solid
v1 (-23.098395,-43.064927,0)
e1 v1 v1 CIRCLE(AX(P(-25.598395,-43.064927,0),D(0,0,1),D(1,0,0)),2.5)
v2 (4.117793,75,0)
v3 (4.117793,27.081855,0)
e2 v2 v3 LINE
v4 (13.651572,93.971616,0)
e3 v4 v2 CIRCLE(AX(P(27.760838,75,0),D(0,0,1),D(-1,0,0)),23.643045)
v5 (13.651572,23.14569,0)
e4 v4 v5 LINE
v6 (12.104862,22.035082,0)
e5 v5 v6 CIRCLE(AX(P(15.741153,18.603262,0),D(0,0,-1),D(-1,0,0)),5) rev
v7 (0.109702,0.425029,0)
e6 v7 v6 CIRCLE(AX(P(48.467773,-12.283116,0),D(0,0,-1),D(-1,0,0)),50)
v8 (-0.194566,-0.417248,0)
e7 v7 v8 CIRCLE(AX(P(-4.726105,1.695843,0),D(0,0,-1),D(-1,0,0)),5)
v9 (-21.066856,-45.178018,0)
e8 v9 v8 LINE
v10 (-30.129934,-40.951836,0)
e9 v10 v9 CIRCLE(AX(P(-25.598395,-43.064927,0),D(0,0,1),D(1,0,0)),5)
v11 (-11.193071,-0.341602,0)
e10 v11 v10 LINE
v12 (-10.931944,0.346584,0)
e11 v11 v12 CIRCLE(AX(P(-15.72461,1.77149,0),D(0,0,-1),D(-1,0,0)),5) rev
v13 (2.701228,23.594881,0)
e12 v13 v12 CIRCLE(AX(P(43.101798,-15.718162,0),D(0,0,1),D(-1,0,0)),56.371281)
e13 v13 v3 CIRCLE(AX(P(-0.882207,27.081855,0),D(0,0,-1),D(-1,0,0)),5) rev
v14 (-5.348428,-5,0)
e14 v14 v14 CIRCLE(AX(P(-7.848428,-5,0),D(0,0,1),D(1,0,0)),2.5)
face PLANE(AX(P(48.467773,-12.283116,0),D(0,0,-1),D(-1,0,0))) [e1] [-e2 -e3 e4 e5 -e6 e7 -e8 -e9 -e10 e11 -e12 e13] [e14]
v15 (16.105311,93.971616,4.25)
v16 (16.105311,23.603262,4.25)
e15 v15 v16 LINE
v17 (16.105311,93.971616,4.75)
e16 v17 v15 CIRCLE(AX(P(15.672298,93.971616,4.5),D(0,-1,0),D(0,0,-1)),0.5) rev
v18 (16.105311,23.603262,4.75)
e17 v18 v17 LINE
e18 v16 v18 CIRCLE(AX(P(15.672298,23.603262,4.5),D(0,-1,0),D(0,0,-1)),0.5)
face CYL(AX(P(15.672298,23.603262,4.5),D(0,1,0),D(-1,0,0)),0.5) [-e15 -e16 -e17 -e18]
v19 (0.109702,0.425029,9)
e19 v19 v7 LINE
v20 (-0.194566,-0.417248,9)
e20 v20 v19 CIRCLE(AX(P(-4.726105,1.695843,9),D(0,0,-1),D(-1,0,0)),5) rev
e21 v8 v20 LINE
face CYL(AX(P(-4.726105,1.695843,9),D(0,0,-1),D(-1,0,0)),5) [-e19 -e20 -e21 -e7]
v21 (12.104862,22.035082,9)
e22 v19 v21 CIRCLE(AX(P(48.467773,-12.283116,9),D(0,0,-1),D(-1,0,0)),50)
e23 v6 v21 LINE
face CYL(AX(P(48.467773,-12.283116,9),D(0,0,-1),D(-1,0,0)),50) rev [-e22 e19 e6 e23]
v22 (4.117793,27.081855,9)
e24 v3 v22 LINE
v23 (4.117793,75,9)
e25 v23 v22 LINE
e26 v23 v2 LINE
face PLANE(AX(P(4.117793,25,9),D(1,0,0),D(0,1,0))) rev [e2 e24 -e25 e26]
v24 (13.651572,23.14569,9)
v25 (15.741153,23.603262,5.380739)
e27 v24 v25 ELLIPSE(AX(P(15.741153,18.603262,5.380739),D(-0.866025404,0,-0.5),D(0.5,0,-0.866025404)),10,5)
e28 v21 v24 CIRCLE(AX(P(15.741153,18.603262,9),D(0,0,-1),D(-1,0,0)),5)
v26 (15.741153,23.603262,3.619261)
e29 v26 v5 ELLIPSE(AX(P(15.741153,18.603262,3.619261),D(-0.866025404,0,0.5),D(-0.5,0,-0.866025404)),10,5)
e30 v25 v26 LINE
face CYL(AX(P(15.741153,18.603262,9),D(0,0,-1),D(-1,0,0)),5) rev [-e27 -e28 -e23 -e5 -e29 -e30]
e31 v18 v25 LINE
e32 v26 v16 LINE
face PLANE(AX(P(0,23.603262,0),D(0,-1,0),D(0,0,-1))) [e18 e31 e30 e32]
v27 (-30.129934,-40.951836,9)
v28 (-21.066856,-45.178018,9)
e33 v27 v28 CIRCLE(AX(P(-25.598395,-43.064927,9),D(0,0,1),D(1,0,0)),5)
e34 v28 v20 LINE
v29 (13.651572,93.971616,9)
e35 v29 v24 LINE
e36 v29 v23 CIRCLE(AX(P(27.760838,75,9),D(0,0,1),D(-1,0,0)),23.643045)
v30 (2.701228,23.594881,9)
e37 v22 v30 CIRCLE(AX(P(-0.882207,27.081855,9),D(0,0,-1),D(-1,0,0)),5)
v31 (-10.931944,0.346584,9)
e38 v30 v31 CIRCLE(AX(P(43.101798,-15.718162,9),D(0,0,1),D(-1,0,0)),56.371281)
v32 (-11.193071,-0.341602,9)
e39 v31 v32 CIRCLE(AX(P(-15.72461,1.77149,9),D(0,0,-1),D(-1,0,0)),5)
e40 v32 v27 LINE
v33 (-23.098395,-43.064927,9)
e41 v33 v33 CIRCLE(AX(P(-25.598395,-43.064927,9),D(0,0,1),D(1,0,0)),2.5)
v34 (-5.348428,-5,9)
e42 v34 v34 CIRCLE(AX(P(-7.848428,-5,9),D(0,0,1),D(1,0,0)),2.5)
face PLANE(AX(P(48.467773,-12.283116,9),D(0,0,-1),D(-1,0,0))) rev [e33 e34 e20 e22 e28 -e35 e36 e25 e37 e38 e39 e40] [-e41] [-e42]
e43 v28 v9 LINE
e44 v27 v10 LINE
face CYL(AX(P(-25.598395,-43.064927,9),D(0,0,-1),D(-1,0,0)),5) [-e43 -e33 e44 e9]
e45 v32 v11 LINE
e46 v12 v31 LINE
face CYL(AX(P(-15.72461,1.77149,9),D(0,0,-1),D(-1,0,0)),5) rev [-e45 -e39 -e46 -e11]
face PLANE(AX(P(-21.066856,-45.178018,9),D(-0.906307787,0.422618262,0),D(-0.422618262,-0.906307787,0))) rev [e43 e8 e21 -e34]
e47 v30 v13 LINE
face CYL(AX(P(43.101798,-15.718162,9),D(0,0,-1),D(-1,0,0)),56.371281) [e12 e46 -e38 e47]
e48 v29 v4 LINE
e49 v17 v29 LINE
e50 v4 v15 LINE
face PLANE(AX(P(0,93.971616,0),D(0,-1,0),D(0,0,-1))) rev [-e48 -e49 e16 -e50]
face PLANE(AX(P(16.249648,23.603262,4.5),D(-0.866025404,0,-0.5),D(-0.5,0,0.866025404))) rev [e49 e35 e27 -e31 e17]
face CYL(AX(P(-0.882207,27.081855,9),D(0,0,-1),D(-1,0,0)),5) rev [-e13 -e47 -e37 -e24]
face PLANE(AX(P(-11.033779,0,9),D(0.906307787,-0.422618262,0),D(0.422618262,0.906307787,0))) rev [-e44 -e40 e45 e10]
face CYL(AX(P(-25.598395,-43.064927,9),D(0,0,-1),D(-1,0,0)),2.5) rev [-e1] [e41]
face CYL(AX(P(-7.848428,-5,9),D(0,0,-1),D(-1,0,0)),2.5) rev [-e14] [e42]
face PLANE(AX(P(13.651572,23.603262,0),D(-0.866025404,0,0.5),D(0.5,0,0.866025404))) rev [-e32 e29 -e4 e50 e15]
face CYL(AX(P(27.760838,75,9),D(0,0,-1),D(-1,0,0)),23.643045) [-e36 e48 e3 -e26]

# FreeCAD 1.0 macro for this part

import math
import FreeCAD as App
import Part
import Sketcher

V = App.Vector
Q = App.Units.Quantity


def edges_at(feature, points):
    """Names of the edges that pass closest to the given points."""
    edges = feature.Shape.Edges
    near = lambda p: min(range(len(edges)), key=lambda i: edges[i].distToShape(Part.Vertex(*p))[0])
    return sorted({f"Edge{near(p) + 1}" for p in points})

doc = App.newDocument("Part")
body = doc.addObject("PartDesign::Body", "Body")

# Sketch on XY plane
sketch1 = body.newObject("Sketcher::SketchObject", "Sketch")
sketch1.AttachmentSupport = (doc.getObject("XY_Plane"), [""])
sketch1.MapMode = "FlatFace"
sketch1.addGeometry([
    Part.LineSegment(V(-11, 0, 0), V(-30.1, -41, 0)),  # 0
    Part.ArcOfCircle(Part.Circle(V(-25.6, -43.1, 0), V(0, 0, 1), 5), math.radians(155), math.radians(335)),  # 1
    Part.LineSegment(V(-21.1, -45.2, 0), V(0, 0, 0)),  # 2
    Part.ArcOfCircle(Part.Circle(V(48.5, -12.3, 0), V(0, 0, 1), 50), math.radians(132), math.radians(166)),  # 3
    Part.LineSegment(V(15.2, 25, 0), V(15.2, 95, 0)),  # 4
    Part.ArcOfCircle(Part.Circle(V(27.8, 75, 0), V(0, 0, 1), 23.6), math.radians(122), math.radians(180)),  # 5
    Part.LineSegment(V(4.1, 75, 0), V(4.1, 25, 0)),  # 6
    Part.ArcOfCircle(Part.Circle(V(43.1, -15.7, 0), V(0, 0, 1), 56.4), math.radians(134), math.radians(164)),  # 7
    Part.Circle(V(-25.6, -43.1, 0), V(0, 0, 1), 2.5),  # 8
    Part.Circle(V(-7.8, -5, 0), V(0, 0, 1), 2.5),  # 9
], False)
sketch1.addConstraint([
    Sketcher.Constraint("Tangent", 0, 2, 1, 1),
    Sketcher.Constraint("Tangent", 1, 2, 2, 1),
    Sketcher.Constraint("Coincident", 2, 2, 3, 2),
    Sketcher.Constraint("Coincident", 3, 1, 4, 1),
    Sketcher.Constraint("Coincident", 4, 2, 5, 1),
    Sketcher.Constraint("Tangent", 5, 2, 6, 1),
    Sketcher.Constraint("Coincident", 6, 2, 7, 1),
    Sketcher.Constraint("Coincident", 7, 2, 0, 1),
    Sketcher.Constraint("Vertical", 4),
    Sketcher.Constraint("Vertical", 6),
    Sketcher.Constraint("Coincident", 2, 2, -1, 1),
    Sketcher.Constraint("Coincident", 8, 3, 1, 3),
    Sketcher.Constraint("Equal", 8, 9),
    Sketcher.Constraint("PointOnObject", 7, 2, -1),
    Sketcher.Constraint("Parallel", 0, 2),
    Sketcher.Constraint("Horizontal", 3, 1, 6, 2),
    Sketcher.Constraint("Diameter", 8, 5.0),
    Sketcher.Constraint("Radius", 1, 5.0),
    Sketcher.Constraint("Radius", 3, 50.0),
    Sketcher.Constraint("DistanceY", 4, 1, 4, 2, 70.0),
    Sketcher.Constraint("DistanceY", 6, 2, 6, 1, 50.0),
    Sketcher.Constraint("Angle", 0, Q("-115 deg")),
    Sketcher.Constraint("DistanceY", -1, 1, 5, 3, 75.0),
    Sketcher.Constraint("DistanceY", 9, 3, -1, 1, 5.0),
    Sketcher.Constraint("DistanceX", 9, 3, 3, 1, 23.0),
    Sketcher.Constraint("Radius", 7, 56.371281),
    Sketcher.Constraint("Radius", 5, 23.643045),
    Sketcher.Constraint("DistanceX", -1, 1, 7, 3, 43.101798),
    Sketcher.Constraint("Distance", 0, 45.185351),
])
pad1 = body.newObject("PartDesign::Pad", "Pad")
pad1.Profile = sketch1
pad1.Length = 9

# Sketch on XY plane
sketch2 = body.newObject("Sketcher::SketchObject", "Sketch001")
sketch2.AttachmentSupport = (doc.getObject("XY_Plane"), [""])
sketch2.MapMode = "FlatFace"
sketch2.AttachmentOffset = App.Placement(V(0, 0, 9), App.Rotation())
sketch2.addGeometry([
    Part.LineSegment(V(13.7, 95, 0), V(13.7, 23.6, 0)),
    Part.LineSegment(V(13.7, 23.6, 0), V(15.2, 23.6, 0)),
    Part.LineSegment(V(15.2, 23.6, 0), V(15.2, 95, 0)),
    Part.LineSegment(V(15.2, 95, 0), V(13.7, 95, 0)),
], False)
sketch2.addConstraint([
    Sketcher.Constraint("Coincident", 0, 2, 1, 1),
    Sketcher.Constraint("Coincident", 1, 2, 2, 1),
    Sketcher.Constraint("Coincident", 2, 2, 3, 1),
    Sketcher.Constraint("Coincident", 3, 2, 0, 1),
    Sketcher.Constraint("Vertical", 0),
    Sketcher.Constraint("Horizontal", 1),
    Sketcher.Constraint("Vertical", 2),
    Sketcher.Constraint("Horizontal", 3),
    Sketcher.Constraint("DistanceX", 1, 1, 1, 2, 1.5),
    Sketcher.Constraint("DistanceY", -1, 1, 2, 2, 95.0),
    Sketcher.Constraint("DistanceY", 0, 2, 0, 1, 71.396738),
    Sketcher.Constraint("DistanceX", -1, 1, 0, 2, 13.651572),
])
pocket1 = body.newObject("PartDesign::Pocket", "Pocket")
pocket1.Profile = sketch2
pocket1.Type = "ThroughAll"

# Sketch on XZ plane
sketch3 = body.newObject("Sketcher::SketchObject", "Sketch002")
sketch3.AttachmentSupport = (doc.getObject("XZ_Plane"), [""])
sketch3.MapMode = "FlatFace"
sketch3.AttachmentOffset = App.Placement(V(0, 0, -93.971616), App.Rotation())
sketch3.addGeometry([
    Part.LineSegment(V(14, 0, 0), V(16, 4, 0)),
    Part.LineSegment(V(16, 4, 0), V(14, 9, 0)),
    Part.LineSegment(V(14, 9, 0), V(14, 0, 0)),
], False)
sketch3.addConstraint([
    Sketcher.Constraint("Coincident", 0, 2, 1, 1),
    Sketcher.Constraint("Coincident", 1, 2, 2, 1),
    Sketcher.Constraint("Coincident", 2, 2, 0, 1),
    Sketcher.Constraint("Vertical", 2),
    Sketcher.Constraint("PointOnObject", 2, 2, -1),
    Sketcher.Constraint("Equal", 0, 1),
    Sketcher.Constraint("DistanceY", 2, 2, 2, 1, 9.0),
    Sketcher.Constraint("Angle", 0, Q("60 deg")),
    Sketcher.Constraint("DistanceX", -1, 1, 0, 2, 16.249648),
])
pad2 = body.newObject("PartDesign::Pad", "Pad001")
pad2.Profile = sketch3
pad2.Length = 70.368354
doc.recompute()

fillet = body.newObject("PartDesign::Fillet", "Fillet")
fillet.Base = (pad2, edges_at(pad2, [(16.25, 58.787, 4.5)]))
fillet.Radius = 0.5
doc.recompute()

fillet2 = body.newObject("PartDesign::Fillet", "Fillet001")
fillet2.Base = (fillet, edges_at(fillet, [
    (0, 0, 4.5),
    (-11.034, 0, 4.5),
    (4.118, 25, 4.5),
    (13.652, 23.603, 4.5),
]))
fillet2.Radius = 5

doc.recompute()
